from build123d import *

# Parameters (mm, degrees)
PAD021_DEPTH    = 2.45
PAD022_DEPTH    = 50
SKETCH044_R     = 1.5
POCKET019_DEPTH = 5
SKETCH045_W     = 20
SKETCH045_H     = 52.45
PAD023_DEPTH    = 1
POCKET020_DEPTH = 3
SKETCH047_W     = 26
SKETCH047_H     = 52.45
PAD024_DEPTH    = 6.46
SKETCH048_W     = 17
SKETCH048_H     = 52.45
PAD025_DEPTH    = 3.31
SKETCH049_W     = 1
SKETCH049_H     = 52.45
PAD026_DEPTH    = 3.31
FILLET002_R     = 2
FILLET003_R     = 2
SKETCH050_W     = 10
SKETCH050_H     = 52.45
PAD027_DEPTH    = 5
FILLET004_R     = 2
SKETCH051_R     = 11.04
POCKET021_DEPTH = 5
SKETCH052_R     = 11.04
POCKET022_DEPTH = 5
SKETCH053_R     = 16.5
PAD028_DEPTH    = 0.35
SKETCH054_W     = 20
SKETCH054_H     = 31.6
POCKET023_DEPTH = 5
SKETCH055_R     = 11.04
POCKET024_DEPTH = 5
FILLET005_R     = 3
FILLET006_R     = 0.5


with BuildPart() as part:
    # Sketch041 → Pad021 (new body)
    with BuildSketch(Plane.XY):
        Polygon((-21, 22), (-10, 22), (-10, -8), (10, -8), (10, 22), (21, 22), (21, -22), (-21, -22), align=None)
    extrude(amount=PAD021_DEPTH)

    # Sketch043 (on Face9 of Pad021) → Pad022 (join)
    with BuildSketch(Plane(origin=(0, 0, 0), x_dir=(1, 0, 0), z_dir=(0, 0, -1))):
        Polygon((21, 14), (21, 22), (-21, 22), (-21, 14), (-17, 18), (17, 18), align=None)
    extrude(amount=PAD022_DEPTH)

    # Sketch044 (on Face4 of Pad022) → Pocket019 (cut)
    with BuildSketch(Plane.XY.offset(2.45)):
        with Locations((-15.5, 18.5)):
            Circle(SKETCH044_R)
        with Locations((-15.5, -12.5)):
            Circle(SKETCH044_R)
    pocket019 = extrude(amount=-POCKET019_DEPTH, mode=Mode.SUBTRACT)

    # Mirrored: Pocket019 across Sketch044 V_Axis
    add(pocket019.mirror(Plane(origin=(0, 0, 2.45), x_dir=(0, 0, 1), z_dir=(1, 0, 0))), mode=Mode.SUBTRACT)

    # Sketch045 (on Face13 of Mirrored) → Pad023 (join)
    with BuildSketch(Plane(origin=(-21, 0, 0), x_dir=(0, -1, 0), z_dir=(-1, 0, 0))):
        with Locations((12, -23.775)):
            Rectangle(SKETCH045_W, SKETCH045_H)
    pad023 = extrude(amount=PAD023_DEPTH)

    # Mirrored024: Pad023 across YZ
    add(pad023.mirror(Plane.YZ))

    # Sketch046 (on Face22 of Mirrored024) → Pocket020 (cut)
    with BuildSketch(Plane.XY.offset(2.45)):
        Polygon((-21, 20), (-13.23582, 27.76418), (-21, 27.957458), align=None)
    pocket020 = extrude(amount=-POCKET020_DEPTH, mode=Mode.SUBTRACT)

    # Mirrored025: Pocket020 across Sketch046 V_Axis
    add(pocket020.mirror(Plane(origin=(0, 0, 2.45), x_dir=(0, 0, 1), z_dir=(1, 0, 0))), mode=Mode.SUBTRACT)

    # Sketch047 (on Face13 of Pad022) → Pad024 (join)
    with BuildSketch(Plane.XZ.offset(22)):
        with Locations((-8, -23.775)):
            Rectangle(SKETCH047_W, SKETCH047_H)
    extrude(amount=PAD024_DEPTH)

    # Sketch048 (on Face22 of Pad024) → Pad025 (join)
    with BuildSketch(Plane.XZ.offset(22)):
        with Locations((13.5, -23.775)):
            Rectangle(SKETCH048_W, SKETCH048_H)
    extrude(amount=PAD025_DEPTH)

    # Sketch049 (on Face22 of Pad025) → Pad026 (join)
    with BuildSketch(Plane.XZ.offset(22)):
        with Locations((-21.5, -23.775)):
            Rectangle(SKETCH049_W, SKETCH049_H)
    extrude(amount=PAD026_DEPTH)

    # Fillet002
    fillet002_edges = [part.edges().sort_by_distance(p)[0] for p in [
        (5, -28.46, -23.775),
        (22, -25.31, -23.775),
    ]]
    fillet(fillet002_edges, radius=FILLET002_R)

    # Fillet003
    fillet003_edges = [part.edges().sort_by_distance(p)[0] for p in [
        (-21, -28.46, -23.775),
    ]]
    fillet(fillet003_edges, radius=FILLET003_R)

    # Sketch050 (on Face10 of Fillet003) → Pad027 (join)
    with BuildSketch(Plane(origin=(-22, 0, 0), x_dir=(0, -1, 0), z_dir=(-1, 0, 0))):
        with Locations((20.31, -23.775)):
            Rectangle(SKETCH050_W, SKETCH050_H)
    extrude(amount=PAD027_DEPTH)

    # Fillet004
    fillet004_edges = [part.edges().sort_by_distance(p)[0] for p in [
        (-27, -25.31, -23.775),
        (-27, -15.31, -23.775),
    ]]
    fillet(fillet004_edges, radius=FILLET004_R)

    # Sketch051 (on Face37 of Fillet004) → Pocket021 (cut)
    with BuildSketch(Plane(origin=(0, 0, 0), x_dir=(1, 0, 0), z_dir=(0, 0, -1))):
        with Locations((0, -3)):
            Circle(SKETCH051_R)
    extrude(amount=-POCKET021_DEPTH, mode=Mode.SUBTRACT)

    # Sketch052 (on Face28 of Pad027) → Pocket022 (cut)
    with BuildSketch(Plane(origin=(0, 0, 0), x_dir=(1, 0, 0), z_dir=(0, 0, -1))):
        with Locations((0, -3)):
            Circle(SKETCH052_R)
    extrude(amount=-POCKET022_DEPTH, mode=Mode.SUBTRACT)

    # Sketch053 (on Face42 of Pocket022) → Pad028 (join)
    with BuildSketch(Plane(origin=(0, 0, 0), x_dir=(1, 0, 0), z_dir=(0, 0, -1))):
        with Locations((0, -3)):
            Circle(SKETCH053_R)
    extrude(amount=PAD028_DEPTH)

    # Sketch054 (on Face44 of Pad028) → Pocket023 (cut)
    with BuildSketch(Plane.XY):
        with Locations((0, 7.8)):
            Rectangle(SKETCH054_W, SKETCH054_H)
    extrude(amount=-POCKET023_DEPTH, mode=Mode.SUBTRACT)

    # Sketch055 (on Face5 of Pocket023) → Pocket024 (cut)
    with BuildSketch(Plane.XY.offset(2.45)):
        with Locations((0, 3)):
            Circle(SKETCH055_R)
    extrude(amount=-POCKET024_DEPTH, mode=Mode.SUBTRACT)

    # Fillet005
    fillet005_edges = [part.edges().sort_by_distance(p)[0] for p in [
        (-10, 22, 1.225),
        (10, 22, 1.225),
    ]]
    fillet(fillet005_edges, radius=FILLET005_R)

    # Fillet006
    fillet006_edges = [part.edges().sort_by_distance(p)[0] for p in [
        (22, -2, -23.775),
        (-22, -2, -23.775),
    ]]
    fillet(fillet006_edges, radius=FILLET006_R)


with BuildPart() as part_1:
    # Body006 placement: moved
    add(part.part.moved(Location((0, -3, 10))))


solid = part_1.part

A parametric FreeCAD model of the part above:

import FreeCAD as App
import Part
import Sketcher

V = App.Vector
Q = App.Units.Quantity


def edges_at(feature, points):
    """Names of the edges that pass closest to the given points."""
    edges = feature.Shape.Edges
    near = lambda p: min(range(len(edges)), key=lambda i: edges[i].distToShape(Part.Vertex(*p))[0])
    return sorted({f"Edge{near(p) + 1}" for p in points})


def add_polygon(sketch, points):
    """Adds a closed chain of lines whose ends are joined by coincident constraints."""
    first, n = sketch.GeometryCount, len(points)
    for a, b in zip(points, points[1:] + points[:1]):
        sketch.addGeometry(Part.LineSegment(App.Vector(*a, 0), App.Vector(*b, 0)), False)
    for i in range(n):
        sketch.addConstraint(Sketcher.Constraint("Coincident", first + i, 2, first + (i + 1) % n, 1))

doc = App.newDocument("Part")
body = doc.addObject("PartDesign::Body", "Body")

# Sketch on XY plane
sketch1 = doc.addObject("Sketcher::SketchObject", "Sketch")
body.addObject(sketch1)
sketch1.AttachmentSupport = (doc.XY_Plane, [""])
sketch1.MapMode = "FlatFace"
add_polygon(sketch1, [(-10, 22), (-21, 22), (-21, -22), (21, -22), (21, 22), (10, 22), (10, -8), (-10, -8)])  # lines 0-7
sketch1.addConstraint(Sketcher.Constraint("Horizontal", 0))
sketch1.addConstraint(Sketcher.Constraint("Vertical", 1))
sketch1.addConstraint(Sketcher.Constraint("Horizontal", 2))
sketch1.addConstraint(Sketcher.Constraint("Vertical", 3))
sketch1.addConstraint(Sketcher.Constraint("Horizontal", 4))
sketch1.addConstraint(Sketcher.Constraint("Vertical", 5))
sketch1.addConstraint(Sketcher.Constraint("Horizontal", 6))
sketch1.addConstraint(Sketcher.Constraint("Vertical", 7))
sketch1.addConstraint(Sketcher.Constraint("Symmetric", 0, 2, 2, 2, -1, 1))
sketch1.addConstraint(Sketcher.Constraint("Symmetric", 4, 2, 7, 2, -2))
sketch1.addConstraint(Sketcher.Constraint("DistanceX", 0, 2, 0, 1, Q("11 mm")))
sketch1.addConstraint(Sketcher.Constraint("DistanceX", 2, 1, 2, 2, Q("42 mm")))
sketch1.addConstraint(Sketcher.Constraint("DistanceY", 1, 2, 1, 1, Q("44 mm")))
sketch1.addConstraint(Sketcher.Constraint("DistanceY", 5, 2, 5, 1, Q("30 mm")))
pad1 = doc.addObject("PartDesign::Pad", "Pad")
body.addObject(pad1)
pad1.Profile = sketch1
pad1.Length = 2.45

# Sketch on XY plane
sketch2 = doc.addObject("Sketcher::SketchObject", "Sketch001")
body.addObject(sketch2)
sketch2.AttachmentSupport = (doc.XY_Plane, [""])
sketch2.MapMode = "FlatFace"
add_polygon(sketch2, [(21, -14), (21, -22), (-21, -22), (-21, -14), (-17, -18), (17, -18)])  # lines 0-5
sketch2.addConstraint(Sketcher.Constraint("Vertical", 0))
sketch2.addConstraint(Sketcher.Constraint("Horizontal", 1))
sketch2.addConstraint(Sketcher.Constraint("Vertical", 2))
sketch2.addConstraint(Sketcher.Constraint("Horizontal", 4))
sketch2.addConstraint(Sketcher.Constraint("Symmetric", 2, 2, 5, 2, -2))
sketch2.addConstraint(Sketcher.Constraint("Perpendicular", 3, 5))
sketch2.addConstraint(Sketcher.Constraint("Equal", 3, 5))
sketch2.addConstraint(Sketcher.Constraint("DistanceX", 1, 2, 1, 1, Q("42 mm")))
sketch2.addConstraint(Sketcher.Constraint("DistanceX", 4, 1, 4, 2, Q("34 mm")))
sketch2.addConstraint(Sketcher.Constraint("DistanceY", 0, 2, 0, 1, Q("8 mm")))
sketch2.addConstraint(Sketcher.Constraint("DistanceY", 0, 2, -1, 1, Q("22 mm")))
pad2 = doc.addObject("PartDesign::Pad", "Pad001")
body.addObject(pad2)
pad2.Profile = sketch2
pad2.Length = 50
pad2.Reversed = True

# Sketch on XY plane
sketch3 = doc.addObject("Sketcher::SketchObject", "Sketch002")
body.addObject(sketch3)
sketch3.AttachmentSupport = (doc.XY_Plane, [""])
sketch3.MapMode = "FlatFace"
sketch3.AttachmentOffset = App.Placement(V(0, 0, 2.45), App.Rotation())
sketch3.addGeometry(Part.Circle(V(-15.5, 18.5, 0), V(0, 0, 1), 1.5), False)
sketch3.addGeometry(Part.Circle(V(-15.5, -12.5, 0), V(0, 0, 1), 1.5), False)
sketch3.addConstraint(Sketcher.Constraint("Equal", 0, 1))
sketch3.addConstraint(Sketcher.Constraint("Vertical", 0, 3, 1, 3))
sketch3.addConstraint(Sketcher.Constraint("Diameter", 0, Q("3 mm")))
sketch3.addConstraint(Sketcher.Constraint("DistanceY", 1, 3, 0, 3, Q("31 mm")))
sketch3.addConstraint(Sketcher.Constraint("DistanceX", 0, 3, -1, 1, Q("15.5 mm")))
sketch3.addConstraint(Sketcher.Constraint("DistanceY", -1, 1, 0, 3, Q("18.5 mm")))
pocket1 = doc.addObject("PartDesign::Pocket", "Pocket")
body.addObject(pocket1)
pocket1.Profile = sketch3
pocket1.Length = 5
doc.recompute()

mirrored = doc.addObject("PartDesign::Mirrored", "Mirrored")
body.addObject(mirrored)
mirrored.Originals = [pocket1]
mirrored.MirrorPlane = (doc.YZ_Plane, [""])
body.Tip = mirrored

# Sketch on YZ plane
sketch4 = doc.addObject("Sketcher::SketchObject", "Sketch003")
body.addObject(sketch4)
sketch4.AttachmentSupport = (doc.YZ_Plane, [""])
sketch4.MapMode = "FlatFace"
sketch4.AttachmentOffset = App.Placement(V(0, 0, -21), App.Rotation())
add_polygon(sketch4, [(-2, 2.45), (-2, -50), (-22, -50), (-22, 2.45)])  # lines 0-3
sketch4.addConstraint(Sketcher.Constraint("Vertical", 0))
sketch4.addConstraint(Sketcher.Constraint("Horizontal", 1))
sketch4.addConstraint(Sketcher.Constraint("Vertical", 2))
sketch4.addConstraint(Sketcher.Constraint("Horizontal", 3))
sketch4.addConstraint(Sketcher.Constraint("DistanceX", 1, 2, 1, 1, Q("20 mm")))
sketch4.addConstraint(Sketcher.Constraint("DistanceX", 0, 2, -1, 1, Q("2 mm")))
sketch4.addConstraint(Sketcher.Constraint("DistanceY", 0, 2, -1, 1, Q("50 mm")))
sketch4.addConstraint(Sketcher.Constraint("DistanceY", 0, 2, 0, 1, Q("52.45 mm")))
pad3 = doc.addObject("PartDesign::Pad", "Pad002")
body.addObject(pad3)
pad3.Profile = sketch4
pad3.Length = 1
pad3.Reversed = True
doc.recompute()

mirrored2 = doc.addObject("PartDesign::Mirrored", "Mirrored001")
body.addObject(mirrored2)
mirrored2.Originals = [pad3]
mirrored2.MirrorPlane = (doc.YZ_Plane, [""])
body.Tip = mirrored2

# Sketch on XY plane
sketch5 = doc.addObject("Sketcher::SketchObject", "Sketch004")
body.addObject(sketch5)
sketch5.AttachmentSupport = (doc.XY_Plane, [""])
sketch5.MapMode = "FlatFace"
sketch5.AttachmentOffset = App.Placement(V(0, 0, 2.45), App.Rotation())
add_polygon(sketch5, [(-21, 20), (-13.23582, 27.76418), (-21, 27.957458)])  # lines 0-2
sketch5.addConstraint(Sketcher.Constraint("Vertical", 2))
sketch5.addConstraint(Sketcher.Constraint("Angle", 0, Q("45 deg")))
sketch5.addConstraint(Sketcher.Constraint("DistanceX", 1, 2, -1, 1, Q("21 mm")))
sketch5.addConstraint(Sketcher.Constraint("DistanceY", -1, 1, 2, 2, Q("20 mm")))
sketch5.addConstraint(Sketcher.Constraint("Distance", 0, Q("10.980209 mm")))
sketch5.addConstraint(Sketcher.Constraint("DistanceY", 2, 2, 2, 1, Q("7.957458 mm")))
pocket2 = doc.addObject("PartDesign::Pocket", "Pocket001")
body.addObject(pocket2)
pocket2.Profile = sketch5
pocket2.Length = 3
doc.recompute()

mirrored3 = doc.addObject("PartDesign::Mirrored", "Mirrored002")
body.addObject(mirrored3)
mirrored3.Originals = [pocket2]
mirrored3.MirrorPlane = (doc.YZ_Plane, [""])
body.Tip = mirrored3

# Sketch on XZ plane
sketch6 = doc.addObject("Sketcher::SketchObject", "Sketch005")
body.addObject(sketch6)
sketch6.AttachmentSupport = (doc.XZ_Plane, [""])
sketch6.MapMode = "FlatFace"
sketch6.AttachmentOffset = App.Placement(V(0, 0, 22), App.Rotation())
add_polygon(sketch6, [(-21, 2.45), (-21, -50), (5, -50), (5, 2.45)])  # lines 0-3
sketch6.addConstraint(Sketcher.Constraint("Vertical", 0))
sketch6.addConstraint(Sketcher.Constraint("Horizontal", 1))
sketch6.addConstraint(Sketcher.Constraint("Vertical", 2))
sketch6.addConstraint(Sketcher.Constraint("Horizontal", 3))
sketch6.addConstraint(Sketcher.Constraint("DistanceX", 1, 1, 1, 2, Q("26 mm")))
sketch6.addConstraint(Sketcher.Constraint("DistanceX", 0, 2, -1, 1, Q("21 mm")))
sketch6.addConstraint(Sketcher.Constraint("DistanceY", 0, 2, -1, 1, Q("50 mm")))
sketch6.addConstraint(Sketcher.Constraint("DistanceY", 0, 2, 0, 1, Q("52.45 mm")))
pad4 = doc.addObject("PartDesign::Pad", "Pad003")
body.addObject(pad4)
pad4.Profile = sketch6
pad4.Length = 6.46

# Sketch on XZ plane
sketch7 = doc.addObject("Sketcher::SketchObject", "Sketch006")
body.addObject(sketch7)
sketch7.AttachmentSupport = (doc.XZ_Plane, [""])
sketch7.MapMode = "FlatFace"
sketch7.AttachmentOffset = App.Placement(V(0, 0, 22), App.Rotation())
add_polygon(sketch7, [(5, 2.45), (5, -50), (22, -50), (22, 2.45)])  # lines 0-3
sketch7.addConstraint(Sketcher.Constraint("Vertical", 0))
sketch7.addConstraint(Sketcher.Constraint("Horizontal", 1))
sketch7.addConstraint(Sketcher.Constraint("Vertical", 2))
sketch7.addConstraint(Sketcher.Constraint("Horizontal", 3))
sketch7.addConstraint(Sketcher.Constraint("DistanceX", 1, 1, 1, 2, Q("17 mm")))
sketch7.addConstraint(Sketcher.Constraint("DistanceX", -1, 1, 0, 2, Q("5 mm")))
sketch7.addConstraint(Sketcher.Constraint("DistanceY", 0, 2, -1, 1, Q("50 mm")))
sketch7.addConstraint(Sketcher.Constraint("DistanceY", 0, 2, 0, 1, Q("52.45 mm")))
pad5 = doc.addObject("PartDesign::Pad", "Pad004")
body.addObject(pad5)
pad5.Profile = sketch7
pad5.Length = 3.31

# Sketch on XZ plane
sketch8 = doc.addObject("Sketcher::SketchObject", "Sketch007")
body.addObject(sketch8)
sketch8.AttachmentSupport = (doc.XZ_Plane, [""])
sketch8.MapMode = "FlatFace"
sketch8.AttachmentOffset = App.Placement(V(0, 0, 22), App.Rotation())
add_polygon(sketch8, [(-22, 2.45), (-22, -50), (-21, -50), (-21, 2.45)])  # lines 0-3
sketch8.addConstraint(Sketcher.Constraint("Vertical", 0))
sketch8.addConstraint(Sketcher.Constraint("Horizontal", 1))
sketch8.addConstraint(Sketcher.Constraint("Vertical", 2))
sketch8.addConstraint(Sketcher.Constraint("Horizontal", 3))
sketch8.addConstraint(Sketcher.Constraint("DistanceX", 1, 1, 1, 2, Q("1 mm")))
sketch8.addConstraint(Sketcher.Constraint("DistanceX", 0, 2, -1, 1, Q("22 mm")))
sketch8.addConstraint(Sketcher.Constraint("DistanceY", 0, 2, -1, 1, Q("50 mm")))
sketch8.addConstraint(Sketcher.Constraint("DistanceY", 0, 2, 0, 1, Q("52.45 mm")))
pad6 = doc.addObject("PartDesign::Pad", "Pad005")
body.addObject(pad6)
pad6.Profile = sketch8
pad6.Length = 3.31
doc.recompute()

fillet = doc.addObject("PartDesign::Fillet", "Fillet")
body.addObject(fillet)
fillet.Base = (pad6, edges_at(pad6, [(5, -28.46, -23.775), (22, -25.31, -23.775)]))
fillet.Radius = 2
doc.recompute()

fillet2 = doc.addObject("PartDesign::Fillet", "Fillet001")
body.addObject(fillet2)
fillet2.Base = (fillet, edges_at(fillet, [(-21, -28.46, -23.775)]))
fillet2.Radius = 2

# Sketch on YZ plane
sketch9 = doc.addObject("Sketcher::SketchObject", "Sketch008")
body.addObject(sketch9)
sketch9.AttachmentSupport = (doc.YZ_Plane, [""])
sketch9.MapMode = "FlatFace"
sketch9.AttachmentOffset = App.Placement(V(0, 0, -22), App.Rotation())
add_polygon(sketch9, [(-15.31, 2.45), (-15.31, -50), (-25.31, -50), (-25.31, 2.45)])  # lines 0-3
sketch9.addConstraint(Sketcher.Constraint("Vertical", 0))
sketch9.addConstraint(Sketcher.Constraint("Horizontal", 1))
sketch9.addConstraint(Sketcher.Constraint("Vertical", 2))
sketch9.addConstraint(Sketcher.Constraint("Horizontal", 3))
sketch9.addConstraint(Sketcher.Constraint("DistanceX", 1, 2, 1, 1, Q("10 mm")))
sketch9.addConstraint(Sketcher.Constraint("DistanceY", 0, 2, -1, 1, Q("50 mm")))
sketch9.addConstraint(Sketcher.Constraint("DistanceY", 0, 2, 0, 1, Q("52.45 mm")))
sketch9.addConstraint(Sketcher.Constraint("DistanceX", 0, 2, -1, 1, Q("15.31 mm")))
pad7 = doc.addObject("PartDesign::Pad", "Pad006")
body.addObject(pad7)
pad7.Profile = sketch9
pad7.Length = 5
pad7.Reversed = True
doc.recompute()

fillet3 = doc.addObject("PartDesign::Fillet", "Fillet002")
body.addObject(fillet3)
fillet3.Base = (pad7, edges_at(pad7, [(-27, -25.31, -23.775), (-27, -15.31, -23.775)]))
fillet3.Radius = 2

# Sketch on XY plane
sketch10 = doc.addObject("Sketcher::SketchObject", "Sketch009")
body.addObject(sketch10)
sketch10.AttachmentSupport = (doc.XY_Plane, [""])
sketch10.MapMode = "FlatFace"
sketch10.addGeometry(Part.Circle(V(0, 3, 0), V(0, 0, 1), 11.04), False)
sketch10.addConstraint(Sketcher.Constraint("PointOnObject", 0, 3, -2))
sketch10.addConstraint(Sketcher.Constraint("Diameter", 0, Q("22.08 mm")))
sketch10.addConstraint(Sketcher.Constraint("DistanceY", -1, 1, 0, 3, Q("3 mm")))
pocket3 = doc.addObject("PartDesign::Pocket", "Pocket002")
body.addObject(pocket3)
pocket3.Profile = sketch10
pocket3.Length = 5
pocket3.Reversed = True

# Sketch on XY plane
sketch11 = doc.addObject("Sketcher::SketchObject", "Sketch010")
body.addObject(sketch11)
sketch11.AttachmentSupport = (doc.XY_Plane, [""])
sketch11.MapMode = "FlatFace"
sketch11.addGeometry(Part.Circle(V(0, 3, 0), V(0, 0, 1), 11.04), False)
sketch11.addConstraint(Sketcher.Constraint("PointOnObject", 0, 3, -2))
sketch11.addConstraint(Sketcher.Constraint("Diameter", 0, Q("22.08 mm")))
sketch11.addConstraint(Sketcher.Constraint("DistanceY", -1, 1, 0, 3, Q("3 mm")))
pocket4 = doc.addObject("PartDesign::Pocket", "Pocket003")
body.addObject(pocket4)
pocket4.Profile = sketch11
pocket4.Length = 5
pocket4.Reversed = True

# Sketch on XY plane
sketch12 = doc.addObject("Sketcher::SketchObject", "Sketch011")
body.addObject(sketch12)
sketch12.AttachmentSupport = (doc.XY_Plane, [""])
sketch12.MapMode = "FlatFace"
sketch12.addGeometry(Part.Circle(V(0, 3, 0), V(0, 0, 1), 16.5), False)
sketch12.addConstraint(Sketcher.Constraint("PointOnObject", 0, 3, -2))
sketch12.addConstraint(Sketcher.Constraint("Diameter", 0, Q("33 mm")))
sketch12.addConstraint(Sketcher.Constraint("DistanceY", -1, 1, 0, 3, Q("3 mm")))
pad8 = doc.addObject("PartDesign::Pad", "Pad007")
body.addObject(pad8)
pad8.Profile = sketch12
pad8.Length = 0.35
pad8.Reversed = True

# Sketch on XY plane
sketch13 = doc.addObject("Sketcher::SketchObject", "Sketch012")
body.addObject(sketch13)
sketch13.AttachmentSupport = (doc.XY_Plane, [""])
sketch13.MapMode = "FlatFace"
add_polygon(sketch13, [(-10, 23.6), (-10, -8), (10, -8), (10, 23.6)])  # lines 0-3
sketch13.addConstraint(Sketcher.Constraint("Vertical", 0))
sketch13.addConstraint(Sketcher.Constraint("Horizontal", 1))
sketch13.addConstraint(Sketcher.Constraint("Vertical", 2))
sketch13.addConstraint(Sketcher.Constraint("Horizontal", 3))
sketch13.addConstraint(Sketcher.Constraint("DistanceX", 1, 1, 1, 2, Q("20 mm")))
sketch13.addConstraint(Sketcher.Constraint("DistanceY", 0, 2, 0, 1, Q("31.6 mm")))
sketch13.addConstraint(Sketcher.Constraint("DistanceX", 0, 2, -1, 1, Q("10 mm")))
sketch13.addConstraint(Sketcher.Constraint("DistanceY", 0, 2, -1, 1, Q("8 mm")))
pocket5 = doc.addObject("PartDesign::Pocket", "Pocket004")
body.addObject(pocket5)
pocket5.Profile = sketch13
pocket5.Length = 5

# Sketch on XY plane
sketch14 = doc.addObject("Sketcher::SketchObject", "Sketch013")
body.addObject(sketch14)
sketch14.AttachmentSupport = (doc.XY_Plane, [""])
sketch14.MapMode = "FlatFace"
sketch14.AttachmentOffset = App.Placement(V(0, 0, 2.45), App.Rotation())
sketch14.addGeometry(Part.Circle(V(0, 3, 0), V(0, 0, 1), 11.04), False)
sketch14.addConstraint(Sketcher.Constraint("PointOnObject", 0, 3, -2))
sketch14.addConstraint(Sketcher.Constraint("Diameter", 0, Q("22.08 mm")))
sketch14.addConstraint(Sketcher.Constraint("DistanceY", -1, 1, 0, 3, Q("3 mm")))
pocket6 = doc.addObject("PartDesign::Pocket", "Pocket005")
body.addObject(pocket6)
pocket6.Profile = sketch14
pocket6.Length = 5
doc.recompute()

fillet4 = doc.addObject("PartDesign::Fillet", "Fillet003")
body.addObject(fillet4)
fillet4.Base = (pocket6, edges_at(pocket6, [(-10, 22, 1.225), (10, 22, 1.225)]))
fillet4.Radius = 3
doc.recompute()

fillet5 = doc.addObject("PartDesign::Fillet", "Fillet004")
body.addObject(fillet5)
fillet5.Base = (fillet4, edges_at(fillet4, [(22, -2, -23.775), (-22, -2, -23.775)]))
fillet5.Radius = 0.5
body2 = doc.addObject("PartDesign::Body", "Body001")
doc.recompute()

body.Placement = App.Placement(V(0, -3, 10), App.Rotation(V(0, 0, 1), 0))
boolean = doc.addObject("PartDesign::Boolean", "Boolean")
body2.addObject(boolean)
boolean.Type = "Fuse"
boolean.addObjects([body])

doc.recompute()
